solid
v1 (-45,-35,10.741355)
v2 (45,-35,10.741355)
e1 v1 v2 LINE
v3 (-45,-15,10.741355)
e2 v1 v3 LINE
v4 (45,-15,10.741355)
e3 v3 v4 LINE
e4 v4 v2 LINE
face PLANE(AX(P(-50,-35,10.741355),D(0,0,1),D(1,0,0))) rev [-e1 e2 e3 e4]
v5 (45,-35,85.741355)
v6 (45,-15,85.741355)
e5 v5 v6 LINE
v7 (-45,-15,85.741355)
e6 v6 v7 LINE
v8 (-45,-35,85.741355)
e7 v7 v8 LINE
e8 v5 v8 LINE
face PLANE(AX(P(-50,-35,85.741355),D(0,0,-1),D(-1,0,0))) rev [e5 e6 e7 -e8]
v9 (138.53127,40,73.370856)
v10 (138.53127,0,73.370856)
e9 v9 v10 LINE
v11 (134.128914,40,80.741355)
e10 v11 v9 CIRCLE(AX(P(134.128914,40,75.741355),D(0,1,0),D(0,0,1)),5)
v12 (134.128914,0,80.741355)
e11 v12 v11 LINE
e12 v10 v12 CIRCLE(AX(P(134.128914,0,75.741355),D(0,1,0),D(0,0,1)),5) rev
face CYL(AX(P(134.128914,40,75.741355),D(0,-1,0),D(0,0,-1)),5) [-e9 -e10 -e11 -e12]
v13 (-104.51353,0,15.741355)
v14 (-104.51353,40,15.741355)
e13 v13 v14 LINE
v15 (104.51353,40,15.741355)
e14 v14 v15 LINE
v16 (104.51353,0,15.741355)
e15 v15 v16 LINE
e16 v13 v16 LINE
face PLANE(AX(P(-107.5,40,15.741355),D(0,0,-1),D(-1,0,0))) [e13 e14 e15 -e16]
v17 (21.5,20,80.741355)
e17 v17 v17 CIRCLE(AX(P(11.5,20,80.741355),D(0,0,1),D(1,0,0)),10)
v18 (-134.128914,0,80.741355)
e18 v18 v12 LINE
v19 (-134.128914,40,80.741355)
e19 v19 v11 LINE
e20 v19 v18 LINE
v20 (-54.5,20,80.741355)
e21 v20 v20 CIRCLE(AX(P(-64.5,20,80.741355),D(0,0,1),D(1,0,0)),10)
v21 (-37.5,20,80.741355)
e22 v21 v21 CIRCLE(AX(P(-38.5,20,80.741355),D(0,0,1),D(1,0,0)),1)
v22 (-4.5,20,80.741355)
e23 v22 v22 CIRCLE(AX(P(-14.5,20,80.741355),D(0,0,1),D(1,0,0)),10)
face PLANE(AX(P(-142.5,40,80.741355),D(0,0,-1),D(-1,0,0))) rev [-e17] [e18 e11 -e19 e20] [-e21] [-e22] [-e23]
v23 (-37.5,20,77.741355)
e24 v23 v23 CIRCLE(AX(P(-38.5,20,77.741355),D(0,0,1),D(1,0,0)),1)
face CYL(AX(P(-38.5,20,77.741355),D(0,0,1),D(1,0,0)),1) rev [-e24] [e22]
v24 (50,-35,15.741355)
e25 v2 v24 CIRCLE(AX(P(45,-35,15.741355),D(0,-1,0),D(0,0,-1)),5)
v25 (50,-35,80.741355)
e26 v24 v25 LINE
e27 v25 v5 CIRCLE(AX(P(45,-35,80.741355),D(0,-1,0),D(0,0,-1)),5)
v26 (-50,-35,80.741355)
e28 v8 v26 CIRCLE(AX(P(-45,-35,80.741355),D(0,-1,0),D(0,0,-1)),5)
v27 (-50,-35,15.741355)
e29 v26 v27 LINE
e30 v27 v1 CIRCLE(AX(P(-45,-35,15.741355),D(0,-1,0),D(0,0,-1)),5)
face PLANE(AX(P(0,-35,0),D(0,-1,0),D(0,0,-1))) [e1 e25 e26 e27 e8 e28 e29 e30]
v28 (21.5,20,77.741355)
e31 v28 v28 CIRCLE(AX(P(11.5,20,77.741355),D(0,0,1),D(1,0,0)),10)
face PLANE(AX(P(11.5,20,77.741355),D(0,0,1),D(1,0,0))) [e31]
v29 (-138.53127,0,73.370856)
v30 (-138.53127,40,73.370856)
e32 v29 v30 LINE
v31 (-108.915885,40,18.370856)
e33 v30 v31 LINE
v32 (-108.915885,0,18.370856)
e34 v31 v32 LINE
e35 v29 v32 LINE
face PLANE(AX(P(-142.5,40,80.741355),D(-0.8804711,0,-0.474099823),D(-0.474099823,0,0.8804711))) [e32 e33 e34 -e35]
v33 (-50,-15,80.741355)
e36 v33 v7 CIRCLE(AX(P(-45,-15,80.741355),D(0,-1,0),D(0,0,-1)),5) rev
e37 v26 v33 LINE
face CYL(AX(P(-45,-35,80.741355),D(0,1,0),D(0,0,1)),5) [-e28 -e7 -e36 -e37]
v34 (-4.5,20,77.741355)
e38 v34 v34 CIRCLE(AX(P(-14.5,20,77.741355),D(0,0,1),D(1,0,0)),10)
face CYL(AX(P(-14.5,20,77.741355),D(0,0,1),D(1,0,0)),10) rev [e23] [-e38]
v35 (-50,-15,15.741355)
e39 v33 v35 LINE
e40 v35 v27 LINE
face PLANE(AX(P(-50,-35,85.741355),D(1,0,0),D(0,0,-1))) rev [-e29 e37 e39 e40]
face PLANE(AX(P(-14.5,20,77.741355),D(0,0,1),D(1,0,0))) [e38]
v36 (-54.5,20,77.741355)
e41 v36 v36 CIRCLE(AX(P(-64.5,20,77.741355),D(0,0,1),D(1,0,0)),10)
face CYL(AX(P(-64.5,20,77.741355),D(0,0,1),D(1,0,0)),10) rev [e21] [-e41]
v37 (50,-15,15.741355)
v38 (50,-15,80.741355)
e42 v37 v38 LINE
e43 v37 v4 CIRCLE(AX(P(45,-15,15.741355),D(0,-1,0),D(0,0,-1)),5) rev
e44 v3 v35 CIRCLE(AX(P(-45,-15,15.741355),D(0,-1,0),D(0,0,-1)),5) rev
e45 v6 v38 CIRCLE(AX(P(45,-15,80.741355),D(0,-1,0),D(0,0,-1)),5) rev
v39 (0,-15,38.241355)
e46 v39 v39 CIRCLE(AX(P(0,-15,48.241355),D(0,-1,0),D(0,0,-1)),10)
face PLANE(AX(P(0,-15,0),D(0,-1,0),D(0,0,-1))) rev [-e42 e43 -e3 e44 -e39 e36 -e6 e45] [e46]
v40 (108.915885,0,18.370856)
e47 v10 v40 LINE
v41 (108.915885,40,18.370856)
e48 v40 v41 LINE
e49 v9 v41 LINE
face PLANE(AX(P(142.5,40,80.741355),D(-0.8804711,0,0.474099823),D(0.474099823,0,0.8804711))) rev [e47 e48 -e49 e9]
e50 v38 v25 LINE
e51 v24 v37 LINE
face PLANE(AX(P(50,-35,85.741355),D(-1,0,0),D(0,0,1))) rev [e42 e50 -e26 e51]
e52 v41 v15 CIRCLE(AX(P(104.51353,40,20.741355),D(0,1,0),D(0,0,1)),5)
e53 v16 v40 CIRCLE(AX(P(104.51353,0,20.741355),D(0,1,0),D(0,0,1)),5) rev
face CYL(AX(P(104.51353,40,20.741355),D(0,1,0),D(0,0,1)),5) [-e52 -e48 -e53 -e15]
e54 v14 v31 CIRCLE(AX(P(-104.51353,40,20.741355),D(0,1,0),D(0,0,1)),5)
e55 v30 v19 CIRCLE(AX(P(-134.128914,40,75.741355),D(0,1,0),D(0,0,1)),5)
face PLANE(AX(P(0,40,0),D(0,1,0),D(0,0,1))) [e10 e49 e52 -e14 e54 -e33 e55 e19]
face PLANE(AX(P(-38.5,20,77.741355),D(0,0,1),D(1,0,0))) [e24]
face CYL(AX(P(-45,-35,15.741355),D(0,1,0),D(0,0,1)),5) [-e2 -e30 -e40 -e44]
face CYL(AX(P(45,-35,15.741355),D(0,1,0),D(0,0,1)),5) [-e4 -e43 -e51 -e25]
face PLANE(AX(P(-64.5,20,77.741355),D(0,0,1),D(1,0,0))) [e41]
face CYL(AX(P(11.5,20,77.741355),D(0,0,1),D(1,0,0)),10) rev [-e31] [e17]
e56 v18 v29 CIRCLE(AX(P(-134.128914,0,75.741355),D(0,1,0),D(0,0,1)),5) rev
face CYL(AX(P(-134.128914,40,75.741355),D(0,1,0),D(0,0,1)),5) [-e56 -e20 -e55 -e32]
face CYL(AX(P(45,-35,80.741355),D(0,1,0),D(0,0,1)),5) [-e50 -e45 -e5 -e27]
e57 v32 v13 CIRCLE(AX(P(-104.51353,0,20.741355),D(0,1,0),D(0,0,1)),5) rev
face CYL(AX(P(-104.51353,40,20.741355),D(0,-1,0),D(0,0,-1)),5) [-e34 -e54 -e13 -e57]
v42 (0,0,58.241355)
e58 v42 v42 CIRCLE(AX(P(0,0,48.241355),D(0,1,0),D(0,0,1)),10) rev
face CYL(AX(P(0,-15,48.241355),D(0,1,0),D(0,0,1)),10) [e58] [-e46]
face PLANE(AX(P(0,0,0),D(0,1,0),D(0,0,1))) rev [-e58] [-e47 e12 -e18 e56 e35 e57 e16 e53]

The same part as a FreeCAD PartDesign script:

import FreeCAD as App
import Part
import Sketcher

V = App.Vector
Q = App.Units.Quantity


def edges_at(feature, points):
    """Names of the edges that pass closest to the given points."""
    edges = feature.Shape.Edges
    near = lambda p: min(range(len(edges)), key=lambda i: edges[i].distToShape(Part.Vertex(*p))[0])
    return sorted({f"Edge{near(p) + 1}" for p in points})


def add_polygon(sketch, points):
    """Adds a closed chain of lines whose ends are joined by coincident constraints."""
    first, n = sketch.GeometryCount, len(points)
    for a, b in zip(points, points[1:] + points[:1]):
        sketch.addGeometry(Part.LineSegment(App.Vector(*a, 0), App.Vector(*b, 0)), False)
    for i in range(n):
        sketch.addConstraint(Sketcher.Constraint("Coincident", first + i, 2, first + (i + 1) % n, 1))

doc = App.newDocument("Part")
body = doc.addObject("PartDesign::Body", "Body")

# Sketch on XZ plane
sketch1 = body.newObject("Sketcher::SketchObject", "Sketch")
sketch1.AttachmentSupport = (doc.getObject("XZ_Plane"), [""])
sketch1.MapMode = "FlatFace"
add_polygon(sketch1, [(108, 16), (-108, 16), (-142, 81), (142, 81)])  # lines 0-3
sketch1.addConstraint(Sketcher.Constraint("Horizontal", 0))
sketch1.addConstraint(Sketcher.Constraint("Horizontal", 2))
sketch1.addConstraint(Sketcher.Constraint("Equal", 1, 3))
sketch1.addConstraint(Sketcher.Constraint("DistanceX", 0, 2, 0, 1, Q("215 mm")))
sketch1.addConstraint(Sketcher.Constraint("DistanceX", 2, 1, 2, 2, Q("285 mm")))
sketch1.addConstraint(Sketcher.Constraint("DistanceY", 0, 2, 1, 2, Q("65 mm")))
sketch1.addConstraint(Sketcher.Constraint("DistanceX", 0, 2, -1, 1, Q("107.5 mm")))
sketch1.addConstraint(Sketcher.Constraint("DistanceY", -1, 1, 0, 2, Q("15.741355 mm")))
pad1 = body.newObject("PartDesign::Pad", "Pad")
pad1.Profile = sketch1
pad1.Length = 40
pad1.Reversed = True

# Sketch on XY plane
sketch2 = body.newObject("Sketcher::SketchObject", "Sketch001")
sketch2.AttachmentSupport = (doc.getObject("XY_Plane"), [""])
sketch2.MapMode = "FlatFace"
sketch2.AttachmentOffset = App.Placement(V(0, 0, 80.741355), App.Rotation())
sketch2.addGeometry(Part.Circle(V(-64.5, 20, 0), V(0, 0, 1), 10), False)
sketch2.addGeometry(Part.Circle(V(-38.5, 20, 0), V(0, 0, 1), 1), False)
sketch2.addGeometry(Part.Circle(V(-14.5, 20, 0), V(0, 0, 1), 10), False)
sketch2.addGeometry(Part.Circle(V(11.5, 20, 0), V(0, 0, 1), 10), False)
sketch2.addConstraint(Sketcher.Constraint("Equal", 0, 2))
sketch2.addConstraint(Sketcher.Constraint("Equal", 2, 3))
sketch2.addConstraint(Sketcher.Constraint("Horizontal", 0, 3, 1, 3))
sketch2.addConstraint(Sketcher.Constraint("Horizontal", 1, 3, 2, 3))
sketch2.addConstraint(Sketcher.Constraint("Horizontal", 2, 3, 3, 3))
sketch2.addConstraint(Sketcher.Constraint("Diameter", 0, Q("20 mm")))
sketch2.addConstraint(Sketcher.Constraint("Diameter", 1, Q("2 mm")))
sketch2.addConstraint(Sketcher.Constraint("DistanceY", -1, 1, 0, 3, Q("20 mm")))
sketch2.addConstraint(Sketcher.Constraint("DistanceX", 0, 3, 1, 3, Q("26 mm")))
sketch2.addConstraint(Sketcher.Constraint("DistanceX", 1, 3, 2, 3, Q("24 mm")))
sketch2.addConstraint(Sketcher.Constraint("DistanceX", 2, 3, 3, 3, Q("26 mm")))
sketch2.addConstraint(Sketcher.Constraint("DistanceX", 0, 3, -1, 1, Q("64.5 mm")))
pocket1 = body.newObject("PartDesign::Pocket", "Pocket")
pocket1.Profile = sketch2
pocket1.Length = 3

# Sketch on XZ plane
sketch3 = body.newObject("Sketcher::SketchObject", "Sketch002")
sketch3.AttachmentSupport = (doc.getObject("XZ_Plane"), [""])
sketch3.MapMode = "FlatFace"
sketch3.addGeometry(Part.Circle(V(0, 48, 0), V(0, 0, 1), 10), False)
sketch3.addConstraint(Sketcher.Constraint("PointOnObject", 0, 3, -2))
sketch3.addConstraint(Sketcher.Constraint("Diameter", 0, Q("20 mm")))
sketch3.addConstraint(Sketcher.Constraint("DistanceY", -1, 1, 0, 3, Q("48.241355 mm")))
pad2 = body.newObject("PartDesign::Pad", "Pad001")
pad2.Profile = sketch3
pad2.Length = 15

# Sketch on XZ plane
sketch4 = body.newObject("Sketcher::SketchObject", "Sketch003")
sketch4.AttachmentSupport = (doc.getObject("XZ_Plane"), [""])
sketch4.MapMode = "FlatFace"
sketch4.AttachmentOffset = App.Placement(V(0, 0, 15), App.Rotation())
add_polygon(sketch4, [(-50, 86), (-50, 11), (50, 11), (50, 86)])  # lines 0-3
sketch4.addConstraint(Sketcher.Constraint("Vertical", 0))
sketch4.addConstraint(Sketcher.Constraint("Horizontal", 1))
sketch4.addConstraint(Sketcher.Constraint("Vertical", 2))
sketch4.addConstraint(Sketcher.Constraint("Horizontal", 3))
sketch4.addConstraint(Sketcher.Constraint("DistanceX", 1, 1, 1, 2, Q("100 mm")))
sketch4.addConstraint(Sketcher.Constraint("DistanceY", 0, 2, 0, 1, Q("75 mm")))
sketch4.addConstraint(Sketcher.Constraint("DistanceX", 0, 2, -1, 1, Q("50 mm")))
sketch4.addConstraint(Sketcher.Constraint("DistanceY", -1, 1, 0, 2, Q("10.741355 mm")))
pad3 = body.newObject("PartDesign::Pad", "Pad002")
pad3.Profile = sketch4
pad3.Length = 20
doc.recompute()

fillet = body.newObject("PartDesign::Fillet", "Fillet")
fillet.Base = (pad3, edges_at(pad3, [
    (-142.5, 20, 80.741),
    (-107.5, 20, 15.741),
    (107.5, 20, 15.741),
    (142.5, 20, 80.741),
]))
fillet.Radius = 5
doc.recompute()

fillet2 = body.newObject("PartDesign::Fillet", "Fillet001")
fillet2.Base = (fillet, edges_at(fillet, [
    (50, -25, 10.741),
    (50, -25, 85.741),
    (-50, -25, 85.741),
    (-50, -25, 10.741),
]))
fillet2.Radius = 5

doc.recompute()
